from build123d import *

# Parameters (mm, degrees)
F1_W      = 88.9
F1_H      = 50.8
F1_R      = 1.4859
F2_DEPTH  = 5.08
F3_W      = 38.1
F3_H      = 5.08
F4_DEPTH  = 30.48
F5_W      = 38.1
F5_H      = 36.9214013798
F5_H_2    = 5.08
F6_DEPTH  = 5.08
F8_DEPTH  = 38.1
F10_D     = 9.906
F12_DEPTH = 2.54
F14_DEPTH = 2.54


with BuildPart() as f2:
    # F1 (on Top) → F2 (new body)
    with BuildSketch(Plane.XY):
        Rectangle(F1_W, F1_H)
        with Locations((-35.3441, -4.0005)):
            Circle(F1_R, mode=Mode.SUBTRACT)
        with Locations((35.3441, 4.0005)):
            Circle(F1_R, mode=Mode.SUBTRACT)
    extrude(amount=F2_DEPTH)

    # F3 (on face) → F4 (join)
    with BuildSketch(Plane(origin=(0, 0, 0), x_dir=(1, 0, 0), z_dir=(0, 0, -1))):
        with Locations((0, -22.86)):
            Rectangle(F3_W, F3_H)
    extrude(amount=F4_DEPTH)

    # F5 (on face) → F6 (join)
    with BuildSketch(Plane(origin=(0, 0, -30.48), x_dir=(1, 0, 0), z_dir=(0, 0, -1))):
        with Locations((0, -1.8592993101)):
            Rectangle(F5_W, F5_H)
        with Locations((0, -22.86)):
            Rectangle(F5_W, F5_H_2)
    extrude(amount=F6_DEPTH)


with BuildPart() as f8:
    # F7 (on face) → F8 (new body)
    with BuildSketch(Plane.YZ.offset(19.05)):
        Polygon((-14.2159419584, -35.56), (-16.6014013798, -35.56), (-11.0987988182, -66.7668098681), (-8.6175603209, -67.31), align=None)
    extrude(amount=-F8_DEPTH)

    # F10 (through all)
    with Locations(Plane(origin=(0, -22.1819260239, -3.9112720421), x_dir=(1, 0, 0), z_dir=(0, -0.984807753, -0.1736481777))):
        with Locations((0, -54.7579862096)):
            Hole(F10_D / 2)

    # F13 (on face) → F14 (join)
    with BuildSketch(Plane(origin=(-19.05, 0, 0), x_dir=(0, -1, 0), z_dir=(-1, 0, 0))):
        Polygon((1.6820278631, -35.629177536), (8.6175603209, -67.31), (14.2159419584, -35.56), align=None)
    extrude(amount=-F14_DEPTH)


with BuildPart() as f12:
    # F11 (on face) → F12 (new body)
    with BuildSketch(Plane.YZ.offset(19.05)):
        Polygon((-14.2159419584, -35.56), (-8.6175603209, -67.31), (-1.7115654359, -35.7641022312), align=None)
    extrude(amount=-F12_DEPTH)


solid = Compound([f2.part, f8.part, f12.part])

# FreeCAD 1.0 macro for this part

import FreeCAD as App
import Part
import Sketcher
Q = App.Units.Quantity


def add_polygon(sketch, points):
    """Adds a closed chain of lines whose ends are joined by coincident constraints."""
    first, n = sketch.GeometryCount, len(points)
    for a, b in zip(points, points[1:] + points[:1]):
        sketch.addGeometry(Part.LineSegment(App.Vector(*a, 0), App.Vector(*b, 0)), False)
    for i in range(n):
        sketch.addConstraint(Sketcher.Constraint("Coincident", first + i, 2, first + (i + 1) % n, 1))

doc = App.newDocument("Part")
body = doc.addObject("PartDesign::Body", "Body")

sketch1 = body.newObject("Sketcher::SketchObject", "Sketch")
sketch1.AttachmentSupport = (doc.getObject("XY_Plane"), [""])
sketch1.MapMode = "FlatFace"
add_polygon(sketch1, [(-44.5, 25.4), (-44.5, -25.4), (44.5, -25.4), (44.5, 25.4)])
sketch1.addGeometry(Part.Circle(App.Vector(-35.3, -4, 0), App.Vector(0, 0, 1), 1.5), False)
sketch1.addGeometry(Part.Circle(App.Vector(35.3, 4, 0), App.Vector(0, 0, 1), 1.5), False)
sketch1.addConstraint(Sketcher.Constraint("Vertical", 0))
sketch1.addConstraint(Sketcher.Constraint("Horizontal", 1))
sketch1.addConstraint(Sketcher.Constraint("Vertical", 2))
sketch1.addConstraint(Sketcher.Constraint("Horizontal", 3))
sketch1.addConstraint(Sketcher.Constraint("Equal", 4, 5))
sketch1.addConstraint(Sketcher.Constraint("Symmetric", 4, 3, 5, 3, -1, 1))
sketch1.addConstraint(Sketcher.Constraint("Symmetric", 0, 2, 2, 2, -1, 1))
sketch1.addConstraint(Sketcher.Constraint("DistanceY", 0, 2, 0, 1, Q("2 in")))
sketch1.addConstraint(Sketcher.Constraint("Diameter", 4, Q("0.117 in")))
sketch1.addConstraint(Sketcher.Constraint("DistanceX", 1, 1, 1, 2, Q("3.5 in")))
sketch1.addConstraint(Sketcher.Constraint("DistanceX", 4, 3, 5, 3, Q("2.783 in")))
sketch1.addConstraint(Sketcher.Constraint("DistanceY", 4, 3, 5, 3, Q("0.315 in")))
pad1 = body.newObject("PartDesign::Pad", "Pad")
pad1.Profile = sketch1
pad1.Length = Q("0.2 in")

sketch2 = body.newObject("Sketcher::SketchObject", "Sketch001")
sketch2.AttachmentSupport = (doc.getObject("XY_Plane"), [""])
sketch2.MapMode = "FlatFace"
add_polygon(sketch2, [(-19, 20), (-19, 25), (19, 25), (19, 20)])
sketch2.addConstraint(Sketcher.Constraint("Vertical", 0))
sketch2.addConstraint(Sketcher.Constraint("Horizontal", 1))
sketch2.addConstraint(Sketcher.Constraint("Vertical", 2))
sketch2.addConstraint(Sketcher.Constraint("Horizontal", 3))
sketch2.addConstraint(Sketcher.Constraint("DistanceX", 1, 1, 1, 2, Q("1.5 in")))
sketch2.addConstraint(Sketcher.Constraint("DistanceY", 0, 1, 0, 2, Q("0.2 in")))
sketch2.addConstraint(Sketcher.Constraint("DistanceY", -1, 1, 0, 2, Q("1 in")))
sketch2.addConstraint(Sketcher.Constraint("DistanceX", 0, 2, -1, 1, Q("0.75 in")))
pad2 = body.newObject("PartDesign::Pad", "Pad001")
pad2.Profile = sketch2
pad2.Length = Q("1.2 in")
pad2.Reversed = True

sketch3 = body.newObject("Sketcher::SketchObject", "Sketch002")
sketch3.AttachmentSupport = (doc.getObject("XY_Plane"), [""])
sketch3.MapMode = "FlatFace"
sketch3.AttachmentOffset = App.Placement(App.Vector(0, 0, -1.2 * 25.4), App.Rotation())
add_polygon(sketch3, [(-19, -17), (-19, 25), (19, 25), (19, -17)])
sketch3.addConstraint(Sketcher.Constraint("Vertical", 0))
sketch3.addConstraint(Sketcher.Constraint("Horizontal", 1))
sketch3.addConstraint(Sketcher.Constraint("Vertical", 2))
sketch3.addConstraint(Sketcher.Constraint("Horizontal", 3))
sketch3.addConstraint(Sketcher.Constraint("DistanceX", 1, 1, 1, 2, Q("1.5 in")))
sketch3.addConstraint(Sketcher.Constraint("DistanceY", -1, 1, 0, 2, Q("1 in")))
sketch3.addConstraint(Sketcher.Constraint("DistanceX", 0, 2, -1, 1, Q("0.75 in")))
sketch3.addConstraint(Sketcher.Constraint("DistanceY", 0, 1, 0, 2, 42.001401))
pad3 = body.newObject("PartDesign::Pad", "Pad002")
pad3.Profile = sketch3
pad3.Length = Q("0.2 in")
pad3.Reversed = True
body2 = doc.addObject("PartDesign::Body", "Body001")

sketch4 = body2.newObject("Sketcher::SketchObject", "Sketch003")
sketch4.AttachmentSupport = (doc.getObject("YZ_Plane001"), [""])
sketch4.MapMode = "FlatFace"
sketch4.AttachmentOffset = App.Placement(App.Vector(0, 0, 0.75 * 25.4), App.Rotation())
add_polygon(sketch4, [(-14.2, -35.6), (-16.6, -35.6), (-11.1, -66.8), (-8.6, -67.3)])
sketch4.addConstraint(Sketcher.Constraint("Horizontal", 0))
sketch4.addConstraint(Sketcher.Constraint("Parallel", 1, 3))
sketch4.addConstraint(Sketcher.Constraint("Angle", 1, Q("-80 deg")))
sketch4.addConstraint(Sketcher.Constraint("Distance", 2, Q("0.1 in")))
sketch4.addConstraint(Sketcher.Constraint("DistanceY", 0, 2, -1, 1, Q("1.4 in")))
sketch4.addConstraint(Sketcher.Constraint("DistanceY", 2, 2, -1, 1, Q("2.65 in")))
sketch4.addConstraint(Sketcher.Constraint("DistanceX", 0, 2, 0, 1, 2.385459))
sketch4.addConstraint(Sketcher.Constraint("DistanceX", 0, 2, -1, 1, 16.601401))
pad4 = body2.newObject("PartDesign::Pad", "Pad003")
pad4.Profile = sketch4
pad4.Length = Q("1.5 in")
pad4.Reversed = True

sketch5 = body2.newObject("Sketcher::SketchObject", "Sketch004")
sketch5.Placement = App.Placement(App.Vector(0, -22.181926, -3.911272), App.Rotation(App.Vector(1, 0, 0), App.Vector(0, -0.173648178, 0.984807753), App.Vector(0, -0.984807753, -0.173648178), "ZXY"))
sketch5.addGeometry(Part.Circle(App.Vector(0, -54.8, 0), App.Vector(0, 0, 1), 5), False)
sketch5.addConstraint(Sketcher.Constraint("PointOnObject", 0, 3, -2))
sketch5.addConstraint(Sketcher.Constraint("Diameter", 0, Q("0.39 in")))
sketch5.addConstraint(Sketcher.Constraint("DistanceY", 0, 3, -1, 1, 54.757986))
doc.recompute()
hole = body2.newObject("PartDesign::Hole", "Hole")
hole.Profile = sketch5
hole.ThreadType = "None"
hole.Diameter = Q("0.39 in")
hole.DepthType = "ThroughAll"

sketch6 = body2.newObject("Sketcher::SketchObject", "Sketch005")
sketch6.AttachmentSupport = (doc.getObject("YZ_Plane001"), [""])
sketch6.MapMode = "FlatFace"
sketch6.AttachmentOffset = App.Placement(App.Vector(0, 0, -0.75 * 25.4), App.Rotation())
add_polygon(sketch6, [(-2, -36), (-9, -67), (-14, -36)])
sketch6.addConstraint(Sketcher.Constraint("Angle", 1, Q("100 deg")))
sketch6.addConstraint(Sketcher.Constraint("DistanceY", 1, 2, -1, 1, Q("1.4 in")))
sketch6.addConstraint(Sketcher.Constraint("DistanceY", 0, 2, -1, 1, Q("2.65 in")))
sketch6.addConstraint(Sketcher.Constraint("Distance", 0, 32.431098))
sketch6.addConstraint(Sketcher.Constraint("DistanceX", 0, 2, -1, 1, 8.61756))
sketch6.addConstraint(Sketcher.Constraint("Distance", 2, 12.534105))
pad5 = body2.newObject("PartDesign::Pad", "Pad004")
pad5.Profile = sketch6
pad5.Length = Q("0.1 in")
body3 = doc.addObject("PartDesign::Body", "Body002")

sketch7 = body3.newObject("Sketcher::SketchObject", "Sketch006")
sketch7.AttachmentSupport = (doc.getObject("YZ_Plane002"), [""])
sketch7.MapMode = "FlatFace"
sketch7.AttachmentOffset = App.Placement(App.Vector(0, 0, 0.75 * 25.4), App.Rotation())
add_polygon(sketch7, [(-14, -36), (-9, -67), (-2, -36)])
sketch7.addConstraint(Sketcher.Constraint("Angle", 0, Q("-80 deg")))
sketch7.addConstraint(Sketcher.Constraint("DistanceY", 2, 2, -1, 1, Q("1.4 in")))
sketch7.addConstraint(Sketcher.Constraint("DistanceY", 0, 2, -1, 1, Q("2.65 in")))
sketch7.addConstraint(Sketcher.Constraint("Distance", 1, 32.292978))
sketch7.addConstraint(Sketcher.Constraint("DistanceX", 0, 2, -1, 1, 8.61756))
sketch7.addConstraint(Sketcher.Constraint("Distance", 2, 12.506042))
pad6 = body3.newObject("PartDesign::Pad", "Pad005")
pad6.Profile = sketch7
pad6.Length = Q("0.1 in")
pad6.Reversed = True

doc.recompute()
